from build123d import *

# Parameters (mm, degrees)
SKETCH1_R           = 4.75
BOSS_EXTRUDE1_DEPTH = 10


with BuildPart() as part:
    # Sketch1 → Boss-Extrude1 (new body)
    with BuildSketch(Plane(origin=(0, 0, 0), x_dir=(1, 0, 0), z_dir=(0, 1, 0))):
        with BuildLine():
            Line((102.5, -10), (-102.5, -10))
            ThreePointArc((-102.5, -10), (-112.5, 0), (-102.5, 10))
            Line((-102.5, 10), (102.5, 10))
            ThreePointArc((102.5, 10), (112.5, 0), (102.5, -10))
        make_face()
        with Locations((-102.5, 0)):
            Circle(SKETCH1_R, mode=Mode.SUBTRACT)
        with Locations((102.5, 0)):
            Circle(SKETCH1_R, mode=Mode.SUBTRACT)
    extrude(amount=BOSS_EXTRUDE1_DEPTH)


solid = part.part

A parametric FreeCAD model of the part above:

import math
import FreeCAD as App
import Part
import Sketcher
from FreeCAD import Vector
Q = App.Units.Quantity

doc = App.newDocument("Part")
params = doc.addObject("Spreadsheet::Sheet", "Params")
for row, (alias, value) in enumerate([
    ("sketch1_radius", "10 mm"),
    ("sketch1_diameter", "9.5 mm"),
    ("sketch1_width", "205 mm"),
    ("pad1_length", "10 mm"),
], start=1):
    params.set(f"A{row}", alias)
    params.set(f"B{row}", "=" + value)
    params.setAlias(f"B{row}", alias)

body = doc.addObject("PartDesign::Body", "Body")

sketch1 = doc.addObject("Sketcher::SketchObject", "Sketch")
body.addObject(sketch1)
sketch1.AttachmentSupport = (doc.XZ_Plane, [""])
sketch1.MapMode = "FlatFace"
sketch1.addGeometry([
    Part.LineSegment(Vector(-102.5, 10, 0), Vector(102.5, 10, 0)),
    Part.ArcOfCircle(Part.Circle(Vector(102.5, 0, 0), Vector(0, 0, 1), 10), math.radians(-90), math.radians(90)),
    Part.LineSegment(Vector(102.5, -10, 0), Vector(-102.5, -10, 0)),
    Part.ArcOfCircle(Part.Circle(Vector(-102.5, 0, 0), Vector(0, 0, 1), 10), math.radians(90), math.radians(270)),
    Part.Circle(Vector(102.5, 0, 0), Vector(0, 0, 1), 4.8),
    Part.Circle(Vector(-102.5, 0, 0), Vector(0, 0, 1), 4.8),
], False)
sketch1.addConstraint([
    Sketcher.Constraint("Tangent", 0, 2, 1, 2),
    Sketcher.Constraint("Tangent", 1, 1, 2, 1),
    Sketcher.Constraint("Tangent", 2, 2, 3, 2),
    Sketcher.Constraint("Tangent", 3, 1, 0, 1),
    Sketcher.Constraint("Horizontal", 0),
    Sketcher.Constraint("Horizontal", 2),
    Sketcher.Constraint("Coincident", 4, 3, 1, 3),
    Sketcher.Constraint("Coincident", 5, 3, 3, 3),
    Sketcher.Constraint("Equal", 4, 5),
    Sketcher.Constraint("Symmetric", 1, 3, 3, 3, -1, 1),
    Sketcher.Constraint("Radius", 1, Q("10 mm")),
    Sketcher.Constraint("Diameter", 4, Q("9.5 mm")),
    Sketcher.Constraint("DistanceX", 0, 1, 0, 2, Q("205 mm")),
])
sketch1.setExpression("Constraints[10]", "Params.sketch1_radius")
sketch1.setExpression("Constraints[11]", "Params.sketch1_diameter")
sketch1.setExpression("Constraints[12]", "Params.sketch1_width")
pad1 = doc.addObject("PartDesign::Pad", "Pad")
body.addObject(pad1)
pad1.Profile = sketch1
pad1.setExpression("Length", "Params.pad1_length")
pad1.Reversed = True

doc.recompute()
